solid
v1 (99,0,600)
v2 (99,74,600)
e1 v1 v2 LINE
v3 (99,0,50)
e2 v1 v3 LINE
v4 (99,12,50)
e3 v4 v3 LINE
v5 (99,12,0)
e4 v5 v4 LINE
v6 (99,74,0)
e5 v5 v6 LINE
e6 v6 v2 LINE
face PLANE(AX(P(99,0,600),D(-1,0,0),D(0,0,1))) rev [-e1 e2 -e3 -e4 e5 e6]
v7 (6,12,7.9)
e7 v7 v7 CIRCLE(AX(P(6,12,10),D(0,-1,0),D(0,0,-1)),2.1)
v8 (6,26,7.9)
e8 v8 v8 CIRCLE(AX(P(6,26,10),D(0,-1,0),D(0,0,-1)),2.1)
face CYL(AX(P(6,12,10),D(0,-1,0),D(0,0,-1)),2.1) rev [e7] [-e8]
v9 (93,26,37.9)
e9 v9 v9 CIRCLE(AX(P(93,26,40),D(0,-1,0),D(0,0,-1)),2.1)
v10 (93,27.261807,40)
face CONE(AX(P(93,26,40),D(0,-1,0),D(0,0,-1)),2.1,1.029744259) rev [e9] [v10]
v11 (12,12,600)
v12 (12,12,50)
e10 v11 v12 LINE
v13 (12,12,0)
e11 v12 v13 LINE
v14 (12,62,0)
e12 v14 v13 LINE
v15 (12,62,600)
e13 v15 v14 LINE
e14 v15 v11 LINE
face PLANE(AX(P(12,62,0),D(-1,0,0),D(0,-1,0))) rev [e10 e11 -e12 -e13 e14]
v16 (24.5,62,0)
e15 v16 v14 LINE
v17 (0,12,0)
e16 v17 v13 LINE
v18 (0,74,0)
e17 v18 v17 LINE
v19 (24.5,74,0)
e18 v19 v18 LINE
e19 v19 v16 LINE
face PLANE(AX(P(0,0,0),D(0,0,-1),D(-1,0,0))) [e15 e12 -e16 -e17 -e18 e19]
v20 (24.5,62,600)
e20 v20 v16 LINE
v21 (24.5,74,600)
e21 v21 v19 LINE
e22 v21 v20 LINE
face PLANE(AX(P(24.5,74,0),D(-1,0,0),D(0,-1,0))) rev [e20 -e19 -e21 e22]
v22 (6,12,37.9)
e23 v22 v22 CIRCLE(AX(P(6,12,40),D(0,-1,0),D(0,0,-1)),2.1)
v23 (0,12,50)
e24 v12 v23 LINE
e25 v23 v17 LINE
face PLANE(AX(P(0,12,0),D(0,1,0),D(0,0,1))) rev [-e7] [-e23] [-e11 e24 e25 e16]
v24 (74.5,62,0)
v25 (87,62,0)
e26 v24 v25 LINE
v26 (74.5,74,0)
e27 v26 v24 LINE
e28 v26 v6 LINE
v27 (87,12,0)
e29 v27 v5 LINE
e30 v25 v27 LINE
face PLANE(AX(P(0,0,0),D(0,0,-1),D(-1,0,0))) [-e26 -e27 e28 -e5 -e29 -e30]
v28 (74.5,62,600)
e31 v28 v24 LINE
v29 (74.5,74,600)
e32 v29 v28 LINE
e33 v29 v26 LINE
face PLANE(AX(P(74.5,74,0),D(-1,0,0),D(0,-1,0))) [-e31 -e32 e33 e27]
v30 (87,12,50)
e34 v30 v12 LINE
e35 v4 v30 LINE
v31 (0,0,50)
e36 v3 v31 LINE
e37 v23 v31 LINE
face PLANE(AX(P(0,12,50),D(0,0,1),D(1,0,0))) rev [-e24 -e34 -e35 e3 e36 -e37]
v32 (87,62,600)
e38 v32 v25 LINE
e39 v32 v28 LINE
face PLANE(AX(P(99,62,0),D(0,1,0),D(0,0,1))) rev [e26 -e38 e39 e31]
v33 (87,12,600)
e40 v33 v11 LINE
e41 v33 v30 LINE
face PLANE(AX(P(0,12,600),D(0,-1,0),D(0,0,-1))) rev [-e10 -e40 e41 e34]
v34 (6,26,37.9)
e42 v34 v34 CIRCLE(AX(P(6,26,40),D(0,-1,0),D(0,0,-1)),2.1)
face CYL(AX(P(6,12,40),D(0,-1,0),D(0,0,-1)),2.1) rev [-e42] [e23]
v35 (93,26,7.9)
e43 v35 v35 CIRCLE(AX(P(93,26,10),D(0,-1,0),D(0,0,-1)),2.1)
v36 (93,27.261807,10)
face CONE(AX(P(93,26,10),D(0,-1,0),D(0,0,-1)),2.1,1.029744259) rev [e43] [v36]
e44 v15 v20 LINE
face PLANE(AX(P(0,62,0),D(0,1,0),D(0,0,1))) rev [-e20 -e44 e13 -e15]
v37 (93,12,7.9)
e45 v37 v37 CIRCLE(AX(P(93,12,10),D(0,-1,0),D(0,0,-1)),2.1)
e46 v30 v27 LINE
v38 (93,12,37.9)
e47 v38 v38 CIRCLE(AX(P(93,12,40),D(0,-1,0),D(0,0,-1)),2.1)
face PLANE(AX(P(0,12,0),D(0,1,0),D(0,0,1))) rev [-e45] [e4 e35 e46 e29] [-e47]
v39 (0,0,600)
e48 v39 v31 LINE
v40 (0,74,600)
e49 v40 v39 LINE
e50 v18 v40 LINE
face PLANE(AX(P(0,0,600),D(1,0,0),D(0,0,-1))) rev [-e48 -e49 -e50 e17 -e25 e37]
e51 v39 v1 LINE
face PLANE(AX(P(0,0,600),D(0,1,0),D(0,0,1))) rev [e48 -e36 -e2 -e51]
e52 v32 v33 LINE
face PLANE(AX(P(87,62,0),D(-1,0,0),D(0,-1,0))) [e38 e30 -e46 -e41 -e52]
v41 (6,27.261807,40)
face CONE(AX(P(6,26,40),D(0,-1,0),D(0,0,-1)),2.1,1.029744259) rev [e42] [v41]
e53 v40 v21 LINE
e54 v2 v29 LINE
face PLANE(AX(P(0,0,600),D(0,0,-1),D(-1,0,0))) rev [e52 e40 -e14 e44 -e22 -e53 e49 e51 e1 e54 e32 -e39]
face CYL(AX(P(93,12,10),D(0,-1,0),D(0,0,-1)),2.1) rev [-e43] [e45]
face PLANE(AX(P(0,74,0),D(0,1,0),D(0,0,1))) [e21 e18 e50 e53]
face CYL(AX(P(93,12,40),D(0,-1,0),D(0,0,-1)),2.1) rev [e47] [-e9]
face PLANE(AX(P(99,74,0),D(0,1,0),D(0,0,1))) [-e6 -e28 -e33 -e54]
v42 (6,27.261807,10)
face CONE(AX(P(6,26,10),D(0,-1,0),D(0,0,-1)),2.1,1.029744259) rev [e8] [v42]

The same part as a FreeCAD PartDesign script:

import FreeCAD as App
import Part
import Sketcher

V = App.Vector


def add_polygon(sketch, points):
    """Adds a closed chain of lines whose ends are joined by coincident constraints."""
    first, n = sketch.GeometryCount, len(points)
    for a, b in zip(points, points[1:] + points[:1]):
        sketch.addGeometry(Part.LineSegment(App.Vector(*a, 0), App.Vector(*b, 0)), False)
    for i in range(n):
        sketch.addConstraint(Sketcher.Constraint("Coincident", first + i, 2, first + (i + 1) % n, 1))

doc = App.newDocument("Part")
body = doc.addObject("PartDesign::Body", "Body")

# Sketch on XY plane
sketch1 = body.newObject("Sketcher::SketchObject", "Sketch")
sketch1.AttachmentSupport = (doc.getObject("XY_Plane"), [""])
sketch1.MapMode = "FlatFace"
add_polygon(sketch1, [(0, 12), (0, 0), (99, 0), (99, 12)])  # lines 0-3
sketch1.addConstraint(Sketcher.Constraint("Vertical", 0))
sketch1.addConstraint(Sketcher.Constraint("Horizontal", 1))
sketch1.addConstraint(Sketcher.Constraint("Vertical", 2))
sketch1.addConstraint(Sketcher.Constraint("Horizontal", 3))
sketch1.addConstraint(Sketcher.Constraint("Coincident", 0, 2, -1, 1))
sketch1.addConstraint(Sketcher.Constraint("DistanceX", 1, 1, 1, 2, 99.0))
sketch1.addConstraint(Sketcher.Constraint("DistanceY", 0, 2, 0, 1, 12.0))
pad1 = body.newObject("PartDesign::Pad", "Pad")
pad1.Profile = sketch1
pad1.Length = 600

# Sketch on XZ plane
sketch2 = body.newObject("Sketcher::SketchObject", "Sketch001")
sketch2.AttachmentSupport = (doc.getObject("XZ_Plane"), [""])
sketch2.MapMode = "FlatFace"
sketch2.AttachmentOffset = App.Placement(V(0, 0, -12), App.Rotation())
add_polygon(sketch2, [(0, 0), (0, 600), (12, 600), (12, 0)])  # lines 0-3
sketch2.addConstraint(Sketcher.Constraint("Vertical", 0))
sketch2.addConstraint(Sketcher.Constraint("Horizontal", 1))
sketch2.addConstraint(Sketcher.Constraint("Vertical", 2))
sketch2.addConstraint(Sketcher.Constraint("Horizontal", 3))
sketch2.addConstraint(Sketcher.Constraint("Coincident", 3, 2, -1, 1))
sketch2.addConstraint(Sketcher.Constraint("DistanceX", 1, 1, 1, 2, 12.0))
sketch2.addConstraint(Sketcher.Constraint("DistanceY", 0, 1, 0, 2, 600.0))
pad2 = body.newObject("PartDesign::Pad", "Pad001")
pad2.Profile = sketch2
pad2.Length = 50
pad2.Reversed = True

# Sketch on XZ plane
sketch3 = body.newObject("Sketcher::SketchObject", "Sketch002")
sketch3.AttachmentSupport = (doc.getObject("XZ_Plane"), [""])
sketch3.MapMode = "FlatFace"
sketch3.AttachmentOffset = App.Placement(V(0, 0, -62), App.Rotation())
add_polygon(sketch3, [(0, 0), (0, 600), (24, 600), (24, 0)])  # lines 0-3
sketch3.addConstraint(Sketcher.Constraint("Vertical", 0))
sketch3.addConstraint(Sketcher.Constraint("Horizontal", 1))
sketch3.addConstraint(Sketcher.Constraint("Vertical", 2))
sketch3.addConstraint(Sketcher.Constraint("Horizontal", 3))
sketch3.addConstraint(Sketcher.Constraint("Coincident", 3, 2, -1, 1))
sketch3.addConstraint(Sketcher.Constraint("DistanceY", 0, 1, 0, 2, 600.0))
sketch3.addConstraint(Sketcher.Constraint("DistanceX", 1, 1, 1, 2, 24.5))
pad3 = body.newObject("PartDesign::Pad", "Pad002")
pad3.Profile = sketch3
pad3.Length = 12
pad3.Reversed = True
doc.recompute()

datumplane = body.newObject("PartDesign::Plane", "DatumPlane")
datumplane.AttachmentSupport = (doc.getObject("YZ_Plane"), [""])
datumplane.MapMode = "FlatFace"
datumplane.AttachmentOffset = App.Placement(V(0, 0, 49.5), App.Rotation())
mirrored = body.newObject("PartDesign::Mirrored", "Mirrored")
mirrored.Originals = [pad2, pad3]
mirrored.MirrorPlane = (datumplane, [""])
body.Tip = mirrored

# Sketch on XZ plane
sketch4 = body.newObject("Sketcher::SketchObject", "Sketch003")
sketch4.AttachmentSupport = (doc.getObject("XZ_Plane"), [""])
sketch4.MapMode = "FlatFace"
add_polygon(sketch4, [(0, 50), (0, 0), (99, 0), (99, 50)])  # lines 0-3
sketch4.addConstraint(Sketcher.Constraint("Vertical", 0))
sketch4.addConstraint(Sketcher.Constraint("Horizontal", 1))
sketch4.addConstraint(Sketcher.Constraint("Vertical", 2))
sketch4.addConstraint(Sketcher.Constraint("Horizontal", 3))
sketch4.addConstraint(Sketcher.Constraint("Coincident", 0, 2, -1, 1))
sketch4.addConstraint(Sketcher.Constraint("DistanceX", 1, 1, 1, 2, 99.0))
sketch4.addConstraint(Sketcher.Constraint("DistanceY", 0, 2, 0, 1, 50.0))
pocket1 = body.newObject("PartDesign::Pocket", "Pocket")
pocket1.Profile = sketch4
pocket1.Length = 12

# Sketch on XZ plane
sketch5 = body.newObject("Sketcher::SketchObject", "Sketch004")
sketch5.AttachmentSupport = (doc.getObject("XZ_Plane"), [""])
sketch5.MapMode = "FlatFace"
sketch5.AttachmentOffset = App.Placement(V(0, 0, -12), App.Rotation())
sketch5.addGeometry(Part.Circle(V(93, 10, 0), V(0, 0, 1), 2.1), False)
sketch5.addGeometry(Part.Circle(V(6, 40, 0), V(0, 0, 1), 2.1), False)
sketch5.addGeometry(Part.Circle(V(93, 40, 0), V(0, 0, 1), 2.1), False)
sketch5.addGeometry(Part.Circle(V(6, 10, 0), V(0, 0, 1), 2.1), False)
sketch5.addConstraint(Sketcher.Constraint("Equal", 0, 1))
sketch5.addConstraint(Sketcher.Constraint("Equal", 1, 2))
sketch5.addConstraint(Sketcher.Constraint("Equal", 2, 3))
sketch5.addConstraint(Sketcher.Constraint("Horizontal", 1, 3, 2, 3))
sketch5.addConstraint(Sketcher.Constraint("Horizontal", 0, 3, 3, 3))
sketch5.addConstraint(Sketcher.Constraint("Vertical", 0, 3, 2, 3))
sketch5.addConstraint(Sketcher.Constraint("Vertical", 1, 3, 3, 3))
sketch5.addConstraint(Sketcher.Constraint("Diameter", 0, 4.2))
sketch5.addConstraint(Sketcher.Constraint("DistanceX", -1, 1, 0, 3, 93.0))
sketch5.addConstraint(Sketcher.Constraint("DistanceY", -1, 1, 0, 3, 10.0))
sketch5.addConstraint(Sketcher.Constraint("DistanceX", -1, 1, 1, 3, 6.0))
sketch5.addConstraint(Sketcher.Constraint("DistanceY", -1, 1, 1, 3, 40.0))
doc.recompute()
hole = body.newObject("PartDesign::Hole", "Hole")
hole.Profile = sketch5
hole.ThreadType = "None"
hole.Diameter = 4.2
hole.DepthType = "Dimension"
hole.Depth = 14
hole.DrillPoint = "Angled"
hole.DrillPointAngle = 118

doc.recompute()
